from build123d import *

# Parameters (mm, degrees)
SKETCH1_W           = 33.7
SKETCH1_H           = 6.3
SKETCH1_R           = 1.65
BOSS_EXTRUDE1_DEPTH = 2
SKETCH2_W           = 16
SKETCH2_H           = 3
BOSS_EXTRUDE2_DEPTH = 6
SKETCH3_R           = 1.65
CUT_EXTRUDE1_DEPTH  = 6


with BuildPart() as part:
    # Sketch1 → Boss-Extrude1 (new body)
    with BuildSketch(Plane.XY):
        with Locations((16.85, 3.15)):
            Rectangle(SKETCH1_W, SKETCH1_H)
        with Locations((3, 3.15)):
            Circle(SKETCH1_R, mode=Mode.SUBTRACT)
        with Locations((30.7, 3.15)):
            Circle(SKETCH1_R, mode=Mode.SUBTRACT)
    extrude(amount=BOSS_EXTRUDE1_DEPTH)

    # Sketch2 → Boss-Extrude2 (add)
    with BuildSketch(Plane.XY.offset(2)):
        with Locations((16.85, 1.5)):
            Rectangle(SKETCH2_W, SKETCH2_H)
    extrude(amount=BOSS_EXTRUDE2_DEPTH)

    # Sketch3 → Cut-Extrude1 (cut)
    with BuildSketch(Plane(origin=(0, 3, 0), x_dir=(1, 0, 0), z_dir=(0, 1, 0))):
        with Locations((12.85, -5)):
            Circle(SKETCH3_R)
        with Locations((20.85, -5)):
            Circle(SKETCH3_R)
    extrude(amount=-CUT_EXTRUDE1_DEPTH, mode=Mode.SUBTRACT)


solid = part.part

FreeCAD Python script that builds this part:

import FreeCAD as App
import Part
import Sketcher


def add_polygon(sketch, points):
    """Adds a closed chain of lines whose ends are joined by coincident constraints."""
    first, n = sketch.GeometryCount, len(points)
    for a, b in zip(points, points[1:] + points[:1]):
        sketch.addGeometry(Part.LineSegment(App.Vector(*a, 0), App.Vector(*b, 0)), False)
    for i in range(n):
        sketch.addConstraint(Sketcher.Constraint("Coincident", first + i, 2, first + (i + 1) % n, 1))

doc = App.newDocument("Part")
body = doc.addObject("PartDesign::Body", "Body")

# Sketch on XY plane
sketch1 = body.newObject("Sketcher::SketchObject", "Sketch")
sketch1.AttachmentSupport = (doc.getObject("XY_Plane"), [""])
sketch1.MapMode = "FlatFace"
add_polygon(sketch1, [(0, 6.3), (0, 0), (33.7, 0), (33.7, 6.3)])  # lines 0-3
sketch1.addGeometry(Part.Circle(App.Vector(3, 3.1, 0), App.Vector(0, 0, 1), 1.6), False)  # 4
sketch1.addGeometry(Part.Circle(App.Vector(30.7, 3.1, 0), App.Vector(0, 0, 1), 1.6), False)  # 5
sketch1.addConstraint(Sketcher.Constraint("Vertical", 0))
sketch1.addConstraint(Sketcher.Constraint("Horizontal", 1))
sketch1.addConstraint(Sketcher.Constraint("Vertical", 2))
sketch1.addConstraint(Sketcher.Constraint("Horizontal", 3))
sketch1.addConstraint(Sketcher.Constraint("Coincident", 0, 2, -1, 1))
sketch1.addConstraint(Sketcher.Constraint("Equal", 4, 5))
sketch1.addConstraint(Sketcher.Constraint("Horizontal", 4, 3, 5, 3))
sketch1.addConstraint(Sketcher.Constraint("Diameter", 4, 3.3))
sketch1.addConstraint(Sketcher.Constraint("DistanceX", 1, 1, 1, 2, 33.7))
sketch1.addConstraint(Sketcher.Constraint("DistanceY", 0, 2, 0, 1, 6.3))
sketch1.addConstraint(Sketcher.Constraint("DistanceX", -1, 1, 4, 3, 3.0))
sketch1.addConstraint(Sketcher.Constraint("DistanceX", 5, 3, 1, 2, 3.0))
sketch1.addConstraint(Sketcher.Constraint("DistanceY", -1, 1, 4, 3, 3.15))
pad1 = body.newObject("PartDesign::Pad", "Pad")
pad1.Profile = sketch1
pad1.Length = 2

# Sketch on XY plane
sketch2 = body.newObject("Sketcher::SketchObject", "Sketch001")
sketch2.AttachmentSupport = (doc.getObject("XY_Plane"), [""])
sketch2.MapMode = "FlatFace"
sketch2.AttachmentOffset = App.Placement(App.Vector(0, 0, 2), App.Rotation())
add_polygon(sketch2, [(8.8, 3), (8.8, 0), (24.9, 0), (24.9, 3)])  # lines 0-3
sketch2.addConstraint(Sketcher.Constraint("Vertical", 0))
sketch2.addConstraint(Sketcher.Constraint("Horizontal", 1))
sketch2.addConstraint(Sketcher.Constraint("Vertical", 2))
sketch2.addConstraint(Sketcher.Constraint("Horizontal", 3))
sketch2.addConstraint(Sketcher.Constraint("PointOnObject", 0, 2, -1))
sketch2.addConstraint(Sketcher.Constraint("DistanceX", 1, 1, 1, 2, 16.0))
sketch2.addConstraint(Sketcher.Constraint("DistanceY", 0, 2, 0, 1, 3.0))
sketch2.addConstraint(Sketcher.Constraint("DistanceX", -1, 1, 0, 2, 8.85))
pad2 = body.newObject("PartDesign::Pad", "Pad001")
pad2.Profile = sketch2
pad2.Length = 6

# Sketch on XZ plane
sketch3 = body.newObject("Sketcher::SketchObject", "Sketch002")
sketch3.AttachmentSupport = (doc.getObject("XZ_Plane"), [""])
sketch3.MapMode = "FlatFace"
sketch3.AttachmentOffset = App.Placement(App.Vector(0, 0, -3), App.Rotation())
sketch3.addGeometry(Part.Circle(App.Vector(12.8, 5, 0), App.Vector(0, 0, 1), 1.6), False)
sketch3.addGeometry(Part.Circle(App.Vector(20.9, 5, 0), App.Vector(0, 0, 1), 1.6), False)
sketch3.addConstraint(Sketcher.Constraint("Equal", 0, 1))
sketch3.addConstraint(Sketcher.Constraint("Horizontal", 0, 3, 1, 3))
sketch3.addConstraint(Sketcher.Constraint("Diameter", 0, 3.3))
sketch3.addConstraint(Sketcher.Constraint("DistanceY", -1, 1, 0, 3, 5.0))
sketch3.addConstraint(Sketcher.Constraint("DistanceX", 0, 3, 1, 3, 8.0))
sketch3.addConstraint(Sketcher.Constraint("DistanceX", -1, 1, 0, 3, 12.85))
pocket1 = body.newObject("PartDesign::Pocket", "Pocket")
pocket1.Profile = sketch3
pocket1.Length = 6
pocket1.Reversed = True

doc.recompute()
